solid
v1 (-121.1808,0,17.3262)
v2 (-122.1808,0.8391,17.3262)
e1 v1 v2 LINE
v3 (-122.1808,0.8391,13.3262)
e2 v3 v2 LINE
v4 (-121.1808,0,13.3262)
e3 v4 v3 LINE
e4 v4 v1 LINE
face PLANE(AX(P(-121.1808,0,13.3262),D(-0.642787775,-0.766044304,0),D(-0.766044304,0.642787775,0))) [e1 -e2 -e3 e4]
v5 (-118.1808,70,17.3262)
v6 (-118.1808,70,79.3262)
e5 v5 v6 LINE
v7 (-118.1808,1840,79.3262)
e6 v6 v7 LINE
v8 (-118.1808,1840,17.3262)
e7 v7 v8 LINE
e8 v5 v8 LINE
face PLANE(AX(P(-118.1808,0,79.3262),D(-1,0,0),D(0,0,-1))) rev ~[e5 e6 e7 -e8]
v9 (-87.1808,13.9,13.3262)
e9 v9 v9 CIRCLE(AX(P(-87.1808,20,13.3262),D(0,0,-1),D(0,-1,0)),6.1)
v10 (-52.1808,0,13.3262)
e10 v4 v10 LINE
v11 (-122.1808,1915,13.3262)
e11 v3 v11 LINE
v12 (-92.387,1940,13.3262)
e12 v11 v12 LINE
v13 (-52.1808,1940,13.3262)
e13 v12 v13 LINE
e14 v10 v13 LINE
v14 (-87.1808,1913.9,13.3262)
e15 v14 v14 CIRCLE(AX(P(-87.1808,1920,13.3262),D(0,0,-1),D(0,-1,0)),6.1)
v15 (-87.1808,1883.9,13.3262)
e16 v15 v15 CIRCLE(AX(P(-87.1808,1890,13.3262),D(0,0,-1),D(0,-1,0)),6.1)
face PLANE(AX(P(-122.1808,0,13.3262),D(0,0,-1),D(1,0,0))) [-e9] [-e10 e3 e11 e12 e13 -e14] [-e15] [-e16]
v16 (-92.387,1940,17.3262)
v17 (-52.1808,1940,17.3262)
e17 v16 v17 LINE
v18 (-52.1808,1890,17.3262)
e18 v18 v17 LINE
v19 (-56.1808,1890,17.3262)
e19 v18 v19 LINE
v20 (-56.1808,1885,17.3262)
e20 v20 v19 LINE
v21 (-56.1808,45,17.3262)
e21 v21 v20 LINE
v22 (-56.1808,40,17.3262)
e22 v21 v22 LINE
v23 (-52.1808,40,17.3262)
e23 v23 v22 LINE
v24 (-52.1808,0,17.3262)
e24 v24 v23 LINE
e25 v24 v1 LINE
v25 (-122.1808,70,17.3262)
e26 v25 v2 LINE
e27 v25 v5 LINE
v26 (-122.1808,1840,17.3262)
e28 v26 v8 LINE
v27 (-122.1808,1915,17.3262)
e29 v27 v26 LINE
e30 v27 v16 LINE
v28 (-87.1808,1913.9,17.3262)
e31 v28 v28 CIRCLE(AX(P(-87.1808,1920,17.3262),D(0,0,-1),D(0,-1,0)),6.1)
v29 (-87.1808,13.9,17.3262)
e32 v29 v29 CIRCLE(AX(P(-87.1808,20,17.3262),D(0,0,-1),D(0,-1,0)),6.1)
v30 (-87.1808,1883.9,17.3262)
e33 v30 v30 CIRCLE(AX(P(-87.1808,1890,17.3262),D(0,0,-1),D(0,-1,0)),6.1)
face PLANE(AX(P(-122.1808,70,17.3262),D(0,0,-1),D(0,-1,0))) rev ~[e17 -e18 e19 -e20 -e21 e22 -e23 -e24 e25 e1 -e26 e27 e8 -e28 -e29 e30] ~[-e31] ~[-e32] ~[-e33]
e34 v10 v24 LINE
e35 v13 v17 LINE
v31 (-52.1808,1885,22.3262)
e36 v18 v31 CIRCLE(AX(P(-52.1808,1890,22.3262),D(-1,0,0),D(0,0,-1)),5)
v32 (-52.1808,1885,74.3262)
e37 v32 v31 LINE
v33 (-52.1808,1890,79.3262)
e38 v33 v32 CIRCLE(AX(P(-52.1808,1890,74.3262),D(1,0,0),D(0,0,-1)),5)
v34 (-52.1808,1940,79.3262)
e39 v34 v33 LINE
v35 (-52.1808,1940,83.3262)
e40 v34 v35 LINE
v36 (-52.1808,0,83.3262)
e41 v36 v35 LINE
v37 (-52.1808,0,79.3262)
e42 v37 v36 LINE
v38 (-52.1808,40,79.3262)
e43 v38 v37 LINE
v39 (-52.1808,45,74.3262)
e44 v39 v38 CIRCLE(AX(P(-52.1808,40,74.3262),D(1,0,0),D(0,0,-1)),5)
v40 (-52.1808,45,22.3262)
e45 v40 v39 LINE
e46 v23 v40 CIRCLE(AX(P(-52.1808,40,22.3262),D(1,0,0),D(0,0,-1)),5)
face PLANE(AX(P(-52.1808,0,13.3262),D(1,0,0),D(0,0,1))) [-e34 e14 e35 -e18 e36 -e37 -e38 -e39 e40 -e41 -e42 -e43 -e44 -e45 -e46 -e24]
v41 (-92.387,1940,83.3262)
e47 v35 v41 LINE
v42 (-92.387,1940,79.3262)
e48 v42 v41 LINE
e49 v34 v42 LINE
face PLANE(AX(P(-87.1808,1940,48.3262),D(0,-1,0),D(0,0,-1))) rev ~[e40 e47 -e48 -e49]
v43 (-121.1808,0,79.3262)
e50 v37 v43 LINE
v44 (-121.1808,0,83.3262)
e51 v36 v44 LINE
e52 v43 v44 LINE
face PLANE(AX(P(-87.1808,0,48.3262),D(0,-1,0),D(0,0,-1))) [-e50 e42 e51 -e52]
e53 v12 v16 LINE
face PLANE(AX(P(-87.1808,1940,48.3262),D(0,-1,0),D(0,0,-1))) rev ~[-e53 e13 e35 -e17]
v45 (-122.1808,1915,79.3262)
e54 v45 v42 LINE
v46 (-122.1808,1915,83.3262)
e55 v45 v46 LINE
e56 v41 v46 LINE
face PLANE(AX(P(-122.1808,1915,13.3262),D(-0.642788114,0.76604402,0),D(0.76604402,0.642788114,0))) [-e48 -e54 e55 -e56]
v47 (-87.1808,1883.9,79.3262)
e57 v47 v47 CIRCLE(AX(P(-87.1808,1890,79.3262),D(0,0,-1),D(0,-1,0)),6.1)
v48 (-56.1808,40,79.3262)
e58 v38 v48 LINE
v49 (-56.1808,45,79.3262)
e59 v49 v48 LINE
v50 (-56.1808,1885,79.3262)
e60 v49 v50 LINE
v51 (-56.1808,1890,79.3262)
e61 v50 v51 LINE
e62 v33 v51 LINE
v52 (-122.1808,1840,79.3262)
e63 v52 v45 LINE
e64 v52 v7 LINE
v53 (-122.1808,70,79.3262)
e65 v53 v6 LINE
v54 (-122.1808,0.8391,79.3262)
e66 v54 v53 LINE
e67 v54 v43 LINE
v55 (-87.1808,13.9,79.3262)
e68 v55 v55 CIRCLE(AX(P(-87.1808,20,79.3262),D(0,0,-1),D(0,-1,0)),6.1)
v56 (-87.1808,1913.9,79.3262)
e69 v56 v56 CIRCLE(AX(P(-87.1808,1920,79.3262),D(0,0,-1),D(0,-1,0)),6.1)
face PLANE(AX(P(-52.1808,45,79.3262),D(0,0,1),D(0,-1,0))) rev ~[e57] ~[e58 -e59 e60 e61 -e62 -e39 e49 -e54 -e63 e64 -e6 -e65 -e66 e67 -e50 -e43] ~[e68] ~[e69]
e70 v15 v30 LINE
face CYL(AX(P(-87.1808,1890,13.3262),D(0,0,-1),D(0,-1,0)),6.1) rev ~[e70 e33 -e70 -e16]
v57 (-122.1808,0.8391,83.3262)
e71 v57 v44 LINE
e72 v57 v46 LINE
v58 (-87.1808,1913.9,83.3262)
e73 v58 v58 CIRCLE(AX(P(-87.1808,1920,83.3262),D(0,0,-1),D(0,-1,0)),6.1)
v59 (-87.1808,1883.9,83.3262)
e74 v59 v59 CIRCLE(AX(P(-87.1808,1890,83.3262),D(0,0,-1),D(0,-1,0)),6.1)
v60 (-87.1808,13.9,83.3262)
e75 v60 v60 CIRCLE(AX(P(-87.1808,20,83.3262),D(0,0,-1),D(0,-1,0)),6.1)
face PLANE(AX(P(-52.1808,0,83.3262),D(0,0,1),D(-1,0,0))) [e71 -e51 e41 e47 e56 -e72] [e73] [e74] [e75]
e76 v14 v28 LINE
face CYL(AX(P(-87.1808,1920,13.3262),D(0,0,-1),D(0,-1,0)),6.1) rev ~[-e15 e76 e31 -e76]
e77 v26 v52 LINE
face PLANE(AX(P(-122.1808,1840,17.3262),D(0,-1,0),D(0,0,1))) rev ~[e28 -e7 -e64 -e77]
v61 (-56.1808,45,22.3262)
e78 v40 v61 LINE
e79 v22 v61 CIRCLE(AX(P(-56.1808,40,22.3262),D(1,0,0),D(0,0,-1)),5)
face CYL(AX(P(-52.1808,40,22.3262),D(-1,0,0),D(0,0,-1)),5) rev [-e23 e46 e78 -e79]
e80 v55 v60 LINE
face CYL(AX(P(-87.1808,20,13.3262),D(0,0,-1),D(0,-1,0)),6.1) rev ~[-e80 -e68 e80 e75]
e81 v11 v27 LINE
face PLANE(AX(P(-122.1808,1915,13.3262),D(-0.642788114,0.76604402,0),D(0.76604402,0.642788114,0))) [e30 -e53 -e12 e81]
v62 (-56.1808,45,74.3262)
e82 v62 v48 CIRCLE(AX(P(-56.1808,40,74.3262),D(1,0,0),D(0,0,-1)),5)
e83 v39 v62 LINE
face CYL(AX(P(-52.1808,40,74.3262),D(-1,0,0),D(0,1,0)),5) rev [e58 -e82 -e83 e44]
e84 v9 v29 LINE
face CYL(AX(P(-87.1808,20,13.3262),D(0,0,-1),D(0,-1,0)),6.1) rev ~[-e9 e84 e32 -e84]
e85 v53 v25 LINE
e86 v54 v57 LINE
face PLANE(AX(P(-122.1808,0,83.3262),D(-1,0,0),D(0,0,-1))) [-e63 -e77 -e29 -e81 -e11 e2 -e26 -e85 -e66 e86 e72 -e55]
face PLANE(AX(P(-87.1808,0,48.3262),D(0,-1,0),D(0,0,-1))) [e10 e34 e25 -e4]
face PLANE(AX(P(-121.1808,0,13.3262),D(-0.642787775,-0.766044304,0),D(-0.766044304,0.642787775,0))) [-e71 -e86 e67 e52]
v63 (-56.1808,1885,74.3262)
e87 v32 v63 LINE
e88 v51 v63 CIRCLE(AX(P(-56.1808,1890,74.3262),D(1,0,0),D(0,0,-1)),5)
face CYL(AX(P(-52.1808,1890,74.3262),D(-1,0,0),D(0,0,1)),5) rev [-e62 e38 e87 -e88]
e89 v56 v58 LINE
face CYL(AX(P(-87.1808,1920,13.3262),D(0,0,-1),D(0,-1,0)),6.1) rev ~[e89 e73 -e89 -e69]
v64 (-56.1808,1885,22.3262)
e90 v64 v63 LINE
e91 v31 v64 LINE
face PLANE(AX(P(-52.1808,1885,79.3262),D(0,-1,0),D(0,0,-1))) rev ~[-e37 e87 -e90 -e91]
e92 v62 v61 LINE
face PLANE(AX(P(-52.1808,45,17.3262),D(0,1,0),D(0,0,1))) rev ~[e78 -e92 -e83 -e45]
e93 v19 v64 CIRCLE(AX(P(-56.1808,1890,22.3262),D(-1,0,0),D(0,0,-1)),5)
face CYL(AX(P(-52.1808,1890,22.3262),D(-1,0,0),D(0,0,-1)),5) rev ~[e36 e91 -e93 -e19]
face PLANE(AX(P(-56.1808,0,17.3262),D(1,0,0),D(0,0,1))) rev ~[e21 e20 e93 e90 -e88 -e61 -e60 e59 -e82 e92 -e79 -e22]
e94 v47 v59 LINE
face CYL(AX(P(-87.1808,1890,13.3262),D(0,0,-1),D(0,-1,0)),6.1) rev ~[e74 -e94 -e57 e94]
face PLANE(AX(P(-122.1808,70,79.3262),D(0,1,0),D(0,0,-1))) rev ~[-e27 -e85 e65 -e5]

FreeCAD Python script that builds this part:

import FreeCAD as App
import Part
import Sketcher
from FreeCAD import Vector
Q = App.Units.Quantity


def edges_at(feature, points):
    """Names of the edges that pass closest to the given points."""
    edges = feature.Shape.Edges
    near = lambda p: min(range(len(edges)), key=lambda i: edges[i].distToShape(Part.Vertex(*p))[0])
    return sorted({f"Edge{near(p) + 1}" for p in points})


def add_polygon(sketch, points):
    """Adds a closed chain of lines whose ends are joined by coincident constraints."""
    first, n = sketch.GeometryCount, len(points)
    for a, b in zip(points, points[1:] + points[:1]):
        sketch.addGeometry(Part.LineSegment(App.Vector(*a, 0), App.Vector(*b, 0)), False)
    for i in range(n):
        sketch.addConstraint(Sketcher.Constraint("Coincident", first + i, 2, first + (i + 1) % n, 1))

doc = App.newDocument("Part")
body = doc.addObject("PartDesign::Body", "Body")

# Sketch on XZ plane
sketch1 = doc.addObject("Sketcher::SketchObject", "Sketch")
body.addObject(sketch1)
sketch1.AttachmentSupport = (doc.XZ_Plane, [""])
sketch1.MapMode = "FlatFace"
add_polygon(sketch1, [(-122.1808, 83.3262), (-122.1808, 13.3262), (-52.1808, 13.3262), (-52.1808, 83.3262)])  # lines 0-3
add_polygon(sketch1, [(-56.1808, 17.3262), (-118.1808, 17.3262), (-118.1808, 79.3262), (-56.1808, 79.3262)])  # lines 4-7
sketch1.addConstraint([
    Sketcher.Constraint("Vertical", 0),
    Sketcher.Constraint("Horizontal", 1),
    Sketcher.Constraint("Vertical", 2),
    Sketcher.Constraint("Horizontal", 3),
    Sketcher.Constraint("Horizontal", 4),
    Sketcher.Constraint("Vertical", 5),
    Sketcher.Constraint("Horizontal", 6),
    Sketcher.Constraint("Vertical", 7),
    Sketcher.Constraint("Equal", 3, 0),
    Sketcher.Constraint("Equal", 6, 5),
    Sketcher.Constraint("DistanceX", 1, 1, 1, 2, 70.0),
    Sketcher.Constraint("DistanceX", 4, 2, 4, 1, 62.0),
    Sketcher.Constraint("DistanceX", 0, 2, 4, 2, 4.0),
    Sketcher.Constraint("DistanceY", 0, 2, 4, 2, 4.0),
    Sketcher.Constraint("DistanceX", 0, 2, -1, 1, 122.1808),
    Sketcher.Constraint("DistanceY", -1, 1, 0, 2, 13.3262),
])
pad1 = doc.addObject("PartDesign::Pad", "Pad")
body.addObject(pad1)
pad1.Profile = sketch1
pad1.Length = 1940
pad1.Reversed = True

# Sketch on XY plane
sketch2 = doc.addObject("Sketcher::SketchObject", "Sketch001")
body.addObject(sketch2)
sketch2.AttachmentSupport = (doc.XY_Plane, [""])
sketch2.MapMode = "FlatFace"
sketch2.AttachmentOffset = App.Placement(Vector(0, 0, 13.3262), App.Rotation())
sketch2.addGeometry([
    Part.Circle(Vector(-87.1808, 1890, 0), Vector(0, 0, 1), 6.1),
    Part.Circle(Vector(-87.1808, 1920, 0), Vector(0, 0, 1), 6.1),
    Part.Circle(Vector(-87.1808, 20, 0), Vector(0, 0, 1), 6.1),
], False)
sketch2.addConstraint([
    Sketcher.Constraint("Equal", 0, 1),
    Sketcher.Constraint("Equal", 1, 2),
    Sketcher.Constraint("Vertical", 0, 3, 1, 3),
    Sketcher.Constraint("Vertical", 1, 3, 2, 3),
    Sketcher.Constraint("Diameter", 0, 12.2),
    Sketcher.Constraint("DistanceY", -1, 1, 0, 3, 1890.0),
    Sketcher.Constraint("DistanceY", -1, 1, 1, 3, 1920.0),
    Sketcher.Constraint("DistanceY", -1, 1, 2, 3, 20.0),
    Sketcher.Constraint("DistanceX", 0, 3, -1, 1, 87.1808),
])
pocket1 = doc.addObject("PartDesign::Pocket", "Pocket")
body.addObject(pocket1)
pocket1.Profile = sketch2
pocket1.Type = "ThroughAll"
pocket1.Reversed = True

# Sketch on YZ plane
sketch3 = doc.addObject("Sketcher::SketchObject", "Sketch002")
body.addObject(sketch3)
sketch3.AttachmentSupport = (doc.YZ_Plane, [""])
sketch3.MapMode = "FlatFace"
sketch3.AttachmentOffset = App.Placement(Vector(0, 0, -52.1808), App.Rotation())
add_polygon(sketch3, [(45, 17.3262), (45, 79.3262), (0, 79.3262), (0, 17.3262)])  # lines 0-3
add_polygon(sketch3, [(1940, 17.3262), (1940, 79.3262), (1885, 79.3262), (1885, 17.3262)])  # lines 4-7
sketch3.addConstraint([
    Sketcher.Constraint("Vertical", 0),
    Sketcher.Constraint("Horizontal", 1),
    Sketcher.Constraint("Vertical", 2),
    Sketcher.Constraint("Horizontal", 3),
    Sketcher.Constraint("Vertical", 4),
    Sketcher.Constraint("Horizontal", 5),
    Sketcher.Constraint("Vertical", 6),
    Sketcher.Constraint("Horizontal", 7),
    Sketcher.Constraint("PointOnObject", 1, 2, -2),
    Sketcher.Constraint("Horizontal", 1, 2, 4, 2),
    Sketcher.Constraint("Horizontal", 3, 2, 6, 2),
    Sketcher.Constraint("DistanceX", 1, 2, 1, 1, 45.0),
    Sketcher.Constraint("DistanceX", 5, 2, 5, 1, 55.0),
    Sketcher.Constraint("DistanceY", 0, 1, 0, 2, 62.0),
    Sketcher.Constraint("DistanceX", -1, 1, 4, 2, 1940.0),
    Sketcher.Constraint("DistanceY", -1, 1, 0, 2, 79.3262),
])
pocket2 = doc.addObject("PartDesign::Pocket", "Pocket001")
body.addObject(pocket2)
pocket2.Profile = sketch3
pocket2.Length = 4

# Sketch on XY plane
sketch4 = doc.addObject("Sketcher::SketchObject", "Sketch003")
body.addObject(sketch4)
sketch4.AttachmentSupport = (doc.XY_Plane, [""])
sketch4.MapMode = "FlatFace"
sketch4.AttachmentOffset = App.Placement(Vector(0, 0, 13.3262), App.Rotation())
add_polygon(sketch4, [(-122.1808, 1915), (-122.1808, 1940), (-92.387, 1940)])  # lines 0-2
sketch4.addConstraint([
    Sketcher.Constraint("Vertical", 0),
    Sketcher.Constraint("Horizontal", 1),
    Sketcher.Constraint("DistanceY", 0, 1, 0, 2, 25.0),
    Sketcher.Constraint("Angle", 2, Q("-140 deg")),
    Sketcher.Constraint("DistanceY", -1, 1, 0, 2, 1940.0),
    Sketcher.Constraint("DistanceX", 1, 2, -1, 1, 92.387),
])
pocket3 = doc.addObject("PartDesign::Pocket", "Pocket002")
body.addObject(pocket3)
pocket3.Profile = sketch4
pocket3.Type = "ThroughAll"
pocket3.Reversed = True

# Sketch on XY plane
sketch5 = doc.addObject("Sketcher::SketchObject", "Sketch004")
body.addObject(sketch5)
sketch5.AttachmentSupport = (doc.XY_Plane, [""])
sketch5.MapMode = "FlatFace"
sketch5.AttachmentOffset = App.Placement(Vector(0, 0, 13.3262), App.Rotation())
add_polygon(sketch5, [(-122.1808, 0.8391), (-121.1808, 0), (-122.1808, 0)])  # lines 0-2
sketch5.addConstraint([
    Sketcher.Constraint("Horizontal", 1),
    Sketcher.Constraint("Vertical", 2),
    Sketcher.Constraint("PointOnObject", 0, 2, -1),
    Sketcher.Constraint("DistanceX", 1, 2, 1, 1, 1.0),
    Sketcher.Constraint("Angle", 0, Q("-40 deg")),
    Sketcher.Constraint("DistanceX", 0, 2, -1, 1, 121.1808),
])
pocket4 = doc.addObject("PartDesign::Pocket", "Pocket003")
body.addObject(pocket4)
pocket4.Profile = sketch5
pocket4.Type = "ThroughAll"
pocket4.Reversed = True

# Sketch on YZ plane
sketch6 = doc.addObject("Sketcher::SketchObject", "Sketch005")
body.addObject(sketch6)
sketch6.AttachmentSupport = (doc.YZ_Plane, [""])
sketch6.MapMode = "FlatFace"
sketch6.AttachmentOffset = App.Placement(Vector(0, 0, -122.1808), App.Rotation())
add_polygon(sketch6, [(1940, 79.3262), (1940, 17.3262), (1840, 17.3262), (1840, 79.3262)])  # lines 0-3
sketch6.addConstraint([
    Sketcher.Constraint("Vertical", 0),
    Sketcher.Constraint("Horizontal", 1),
    Sketcher.Constraint("Vertical", 2),
    Sketcher.Constraint("Horizontal", 3),
    Sketcher.Constraint("DistanceX", 1, 2, 1, 1, 100.0),
    Sketcher.Constraint("DistanceY", 0, 2, 0, 1, 62.0),
    Sketcher.Constraint("DistanceX", -1, 1, 0, 2, 1940.0),
    Sketcher.Constraint("DistanceY", -1, 1, 0, 2, 17.3262),
])
pocket5 = doc.addObject("PartDesign::Pocket", "Pocket004")
body.addObject(pocket5)
pocket5.Profile = sketch6
pocket5.Type = "UpToFirst"
pocket5.Reversed = True

# Sketch on YZ plane
sketch7 = doc.addObject("Sketcher::SketchObject", "Sketch006")
body.addObject(sketch7)
sketch7.AttachmentSupport = (doc.YZ_Plane, [""])
sketch7.MapMode = "FlatFace"
sketch7.AttachmentOffset = App.Placement(Vector(0, 0, -122.1808), App.Rotation())
add_polygon(sketch7, [(0, 17.3262), (0, 79.3262), (70, 79.3262), (70, 17.3262)])  # lines 0-3
sketch7.addConstraint([
    Sketcher.Constraint("Vertical", 0),
    Sketcher.Constraint("Horizontal", 1),
    Sketcher.Constraint("Vertical", 2),
    Sketcher.Constraint("Horizontal", 3),
    Sketcher.Constraint("PointOnObject", 0, 2, -2),
    Sketcher.Constraint("DistanceX", 1, 1, 1, 2, 70.0),
    Sketcher.Constraint("DistanceY", 0, 1, 0, 2, 62.0),
    Sketcher.Constraint("DistanceY", -1, 1, 0, 2, 79.3262),
])
pocket6 = doc.addObject("PartDesign::Pocket", "Pocket005")
body.addObject(pocket6)
pocket6.Profile = sketch7
pocket6.Type = "UpToFirst"
pocket6.Reversed = True
doc.recompute()

fillet = doc.addObject("PartDesign::Fillet", "Fillet")
body.addObject(fillet)
fillet.Base = (pocket6, edges_at(pocket6, [
    (-54.181, 45, 79.326),
    (-54.181, 45, 17.326),
    (-54.181, 1885, 79.326),
    (-54.181, 1885, 17.326),
]))
fillet.Radius = 5

doc.recompute()
